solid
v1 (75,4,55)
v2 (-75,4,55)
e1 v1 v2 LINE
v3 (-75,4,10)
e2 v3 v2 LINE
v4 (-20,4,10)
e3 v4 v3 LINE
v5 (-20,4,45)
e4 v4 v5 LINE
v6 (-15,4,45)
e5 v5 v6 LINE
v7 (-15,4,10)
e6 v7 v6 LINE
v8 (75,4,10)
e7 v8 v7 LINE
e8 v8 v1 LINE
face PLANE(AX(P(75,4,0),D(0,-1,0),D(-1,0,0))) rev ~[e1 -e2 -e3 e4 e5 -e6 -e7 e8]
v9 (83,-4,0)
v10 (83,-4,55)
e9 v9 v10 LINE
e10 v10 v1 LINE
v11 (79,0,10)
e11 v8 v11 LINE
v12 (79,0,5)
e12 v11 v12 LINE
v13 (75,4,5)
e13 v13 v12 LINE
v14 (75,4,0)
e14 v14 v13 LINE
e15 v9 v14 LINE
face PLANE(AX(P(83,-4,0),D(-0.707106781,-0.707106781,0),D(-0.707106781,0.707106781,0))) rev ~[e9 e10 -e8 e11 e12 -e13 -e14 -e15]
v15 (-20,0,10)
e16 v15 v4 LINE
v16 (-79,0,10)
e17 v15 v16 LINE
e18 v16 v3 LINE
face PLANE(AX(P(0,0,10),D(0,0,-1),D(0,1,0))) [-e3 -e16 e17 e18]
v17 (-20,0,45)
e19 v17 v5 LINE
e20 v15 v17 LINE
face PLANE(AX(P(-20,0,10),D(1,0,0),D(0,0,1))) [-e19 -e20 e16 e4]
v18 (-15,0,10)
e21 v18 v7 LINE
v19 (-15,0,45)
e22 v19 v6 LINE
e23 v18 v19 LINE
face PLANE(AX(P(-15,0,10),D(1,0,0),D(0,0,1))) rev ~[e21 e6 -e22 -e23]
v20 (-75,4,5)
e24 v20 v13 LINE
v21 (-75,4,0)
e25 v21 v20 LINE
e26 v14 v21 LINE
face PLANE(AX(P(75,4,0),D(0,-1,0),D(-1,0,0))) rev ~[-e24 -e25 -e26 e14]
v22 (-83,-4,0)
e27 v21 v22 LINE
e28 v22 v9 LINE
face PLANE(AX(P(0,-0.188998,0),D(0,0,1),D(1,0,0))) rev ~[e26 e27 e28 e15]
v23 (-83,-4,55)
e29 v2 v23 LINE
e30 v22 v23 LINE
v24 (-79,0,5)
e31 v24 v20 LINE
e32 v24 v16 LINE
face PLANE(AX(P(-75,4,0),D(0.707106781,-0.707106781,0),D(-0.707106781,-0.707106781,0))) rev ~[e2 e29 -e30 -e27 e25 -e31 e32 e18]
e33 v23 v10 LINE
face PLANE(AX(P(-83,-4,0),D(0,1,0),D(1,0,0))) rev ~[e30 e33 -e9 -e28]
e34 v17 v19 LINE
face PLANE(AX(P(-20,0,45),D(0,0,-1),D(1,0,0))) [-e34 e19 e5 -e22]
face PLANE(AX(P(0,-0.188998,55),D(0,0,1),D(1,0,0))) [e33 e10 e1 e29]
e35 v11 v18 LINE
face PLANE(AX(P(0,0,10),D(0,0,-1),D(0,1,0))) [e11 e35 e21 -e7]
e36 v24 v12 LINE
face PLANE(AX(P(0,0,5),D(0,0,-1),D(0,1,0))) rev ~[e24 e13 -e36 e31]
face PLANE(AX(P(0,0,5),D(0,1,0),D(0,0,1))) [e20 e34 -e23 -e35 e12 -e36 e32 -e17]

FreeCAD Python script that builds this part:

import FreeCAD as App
import Part
import Sketcher
from FreeCAD import Vector
Q = App.Units.Quantity

doc = App.newDocument("Part")
params = doc.addObject("Spreadsheet::Sheet", "Params")
for row, (alias, value) in enumerate([
    ("sketch1_width", "166 mm"),
    ("sketch1_width2", "150 mm"),
    ("pad1_length", "55 mm"),
    ("sketch2_width", "4 mm"),
    ("sketch2_height", "5 mm"),
    ("pocket1_length", "166 mm"),
    ("sketch3_width", "5 mm"),
    ("sketch3_height", "35 mm"),
    ("pocket2_length", "4 mm"),
], start=1):
    params.set(f"A{row}", alias)
    params.set(f"B{row}", "=" + value)
    params.setAlias(f"B{row}", alias)

body = doc.addObject("PartDesign::Body", "Body")

sketch1 = body.newObject("Sketcher::SketchObject", "Sketch")
sketch1.AttachmentSupport = (doc.getObject("XY_Plane"), [""])
sketch1.MapMode = "FlatFace"
sketch1.addGeometry(Part.LineSegment(Vector(-75, 4, 0), Vector(-83, -4, 0)), False)
sketch1.addGeometry(Part.LineSegment(Vector(-83, -4, 0), Vector(83, -4, 0)), False)
sketch1.addGeometry(Part.LineSegment(Vector(83, -4, 0), Vector(75, 4, 0)), False)
sketch1.addGeometry(Part.LineSegment(Vector(75, 4, 0), Vector(-75, 4, 0)), False)
sketch1.addConstraint(Sketcher.Constraint("Coincident", 0, 2, 1, 1))
sketch1.addConstraint(Sketcher.Constraint("Coincident", 1, 2, 2, 1))
sketch1.addConstraint(Sketcher.Constraint("Coincident", 2, 2, 3, 1))
sketch1.addConstraint(Sketcher.Constraint("Coincident", 3, 2, 0, 1))
sketch1.addConstraint(Sketcher.Constraint("Horizontal", 1))
sketch1.addConstraint(Sketcher.Constraint("Horizontal", 3))
sketch1.addConstraint(Sketcher.Constraint("Perpendicular", 0, 2))
sketch1.addConstraint(Sketcher.Constraint("Equal", 0, 2))
sketch1.addConstraint(Sketcher.Constraint("DistanceX", 1, 1, 1, 2, Q("166 mm")))
sketch1.addConstraint(Sketcher.Constraint("DistanceX", 3, 2, 3, 1, Q("150 mm")))
sketch1.addConstraint(Sketcher.Constraint("DistanceX", 0, 2, -1, 1, Q("83 mm")))
sketch1.addConstraint(Sketcher.Constraint("DistanceY", 0, 2, -1, 1, Q("4 mm")))
sketch1.setExpression("Constraints[8]", "Params.sketch1_width")
sketch1.setExpression("Constraints[9]", "Params.sketch1_width2")
pad1 = body.newObject("PartDesign::Pad", "Pad")
pad1.Profile = sketch1
pad1.setExpression("Length", "Params.pad1_length")

sketch2 = body.newObject("Sketcher::SketchObject", "Sketch001")
sketch2.AttachmentSupport = (doc.getObject("YZ_Plane"), [""])
sketch2.MapMode = "FlatFace"
sketch2.addGeometry(Part.LineSegment(Vector(0, 10, 0), Vector(0, 5, 0)), False)
sketch2.addGeometry(Part.LineSegment(Vector(0, 5, 0), Vector(4, 5, 0)), False)
sketch2.addGeometry(Part.LineSegment(Vector(4, 5, 0), Vector(4, 10, 0)), False)
sketch2.addGeometry(Part.LineSegment(Vector(4, 10, 0), Vector(0, 10, 0)), False)
sketch2.addConstraint(Sketcher.Constraint("Coincident", 0, 2, 1, 1))
sketch2.addConstraint(Sketcher.Constraint("Coincident", 1, 2, 2, 1))
sketch2.addConstraint(Sketcher.Constraint("Coincident", 2, 2, 3, 1))
sketch2.addConstraint(Sketcher.Constraint("Coincident", 3, 2, 0, 1))
sketch2.addConstraint(Sketcher.Constraint("Vertical", 0))
sketch2.addConstraint(Sketcher.Constraint("Horizontal", 1))
sketch2.addConstraint(Sketcher.Constraint("Vertical", 2))
sketch2.addConstraint(Sketcher.Constraint("Horizontal", 3))
sketch2.addConstraint(Sketcher.Constraint("PointOnObject", 0, 2, -2))
sketch2.addConstraint(Sketcher.Constraint("DistanceX", 1, 1, 1, 2, Q("4 mm")))
sketch2.addConstraint(Sketcher.Constraint("DistanceY", 0, 2, 0, 1, Q("5 mm")))
sketch2.addConstraint(Sketcher.Constraint("DistanceY", -1, 1, 0, 2, Q("5 mm")))
sketch2.setExpression("Constraints[9]", "Params.sketch2_width")
sketch2.setExpression("Constraints[10]", "Params.sketch2_height")
pocket1 = body.newObject("PartDesign::Pocket", "Pocket")
pocket1.Profile = sketch2
pocket1.setExpression("Length", "Params.pocket1_length")
pocket1.Midplane = True

sketch3 = body.newObject("Sketcher::SketchObject", "Sketch002")
sketch3.AttachmentSupport = (doc.getObject("XZ_Plane"), [""])
sketch3.MapMode = "FlatFace"
sketch3.addGeometry(Part.LineSegment(Vector(-20, 45, 0), Vector(-20, 10, 0)), False)
sketch3.addGeometry(Part.LineSegment(Vector(-20, 10, 0), Vector(-15, 10, 0)), False)
sketch3.addGeometry(Part.LineSegment(Vector(-15, 10, 0), Vector(-15, 45, 0)), False)
sketch3.addGeometry(Part.LineSegment(Vector(-15, 45, 0), Vector(-20, 45, 0)), False)
sketch3.addConstraint(Sketcher.Constraint("Coincident", 0, 2, 1, 1))
sketch3.addConstraint(Sketcher.Constraint("Coincident", 1, 2, 2, 1))
sketch3.addConstraint(Sketcher.Constraint("Coincident", 2, 2, 3, 1))
sketch3.addConstraint(Sketcher.Constraint("Coincident", 3, 2, 0, 1))
sketch3.addConstraint(Sketcher.Constraint("Vertical", 0))
sketch3.addConstraint(Sketcher.Constraint("Horizontal", 1))
sketch3.addConstraint(Sketcher.Constraint("Vertical", 2))
sketch3.addConstraint(Sketcher.Constraint("Horizontal", 3))
sketch3.addConstraint(Sketcher.Constraint("DistanceX", 1, 1, 1, 2, Q("5 mm")))
sketch3.addConstraint(Sketcher.Constraint("DistanceY", 0, 2, 0, 1, Q("35 mm")))
sketch3.addConstraint(Sketcher.Constraint("DistanceX", 0, 2, -1, 1, Q("20 mm")))
sketch3.addConstraint(Sketcher.Constraint("DistanceY", -1, 1, 0, 2, Q("10 mm")))
sketch3.setExpression("Constraints[8]", "Params.sketch3_width")
sketch3.setExpression("Constraints[9]", "Params.sketch3_height")
pocket2 = body.newObject("PartDesign::Pocket", "Pocket001")
pocket2.Profile = sketch3
pocket2.setExpression("Length", "Params.pocket2_length")

doc.recompute()
